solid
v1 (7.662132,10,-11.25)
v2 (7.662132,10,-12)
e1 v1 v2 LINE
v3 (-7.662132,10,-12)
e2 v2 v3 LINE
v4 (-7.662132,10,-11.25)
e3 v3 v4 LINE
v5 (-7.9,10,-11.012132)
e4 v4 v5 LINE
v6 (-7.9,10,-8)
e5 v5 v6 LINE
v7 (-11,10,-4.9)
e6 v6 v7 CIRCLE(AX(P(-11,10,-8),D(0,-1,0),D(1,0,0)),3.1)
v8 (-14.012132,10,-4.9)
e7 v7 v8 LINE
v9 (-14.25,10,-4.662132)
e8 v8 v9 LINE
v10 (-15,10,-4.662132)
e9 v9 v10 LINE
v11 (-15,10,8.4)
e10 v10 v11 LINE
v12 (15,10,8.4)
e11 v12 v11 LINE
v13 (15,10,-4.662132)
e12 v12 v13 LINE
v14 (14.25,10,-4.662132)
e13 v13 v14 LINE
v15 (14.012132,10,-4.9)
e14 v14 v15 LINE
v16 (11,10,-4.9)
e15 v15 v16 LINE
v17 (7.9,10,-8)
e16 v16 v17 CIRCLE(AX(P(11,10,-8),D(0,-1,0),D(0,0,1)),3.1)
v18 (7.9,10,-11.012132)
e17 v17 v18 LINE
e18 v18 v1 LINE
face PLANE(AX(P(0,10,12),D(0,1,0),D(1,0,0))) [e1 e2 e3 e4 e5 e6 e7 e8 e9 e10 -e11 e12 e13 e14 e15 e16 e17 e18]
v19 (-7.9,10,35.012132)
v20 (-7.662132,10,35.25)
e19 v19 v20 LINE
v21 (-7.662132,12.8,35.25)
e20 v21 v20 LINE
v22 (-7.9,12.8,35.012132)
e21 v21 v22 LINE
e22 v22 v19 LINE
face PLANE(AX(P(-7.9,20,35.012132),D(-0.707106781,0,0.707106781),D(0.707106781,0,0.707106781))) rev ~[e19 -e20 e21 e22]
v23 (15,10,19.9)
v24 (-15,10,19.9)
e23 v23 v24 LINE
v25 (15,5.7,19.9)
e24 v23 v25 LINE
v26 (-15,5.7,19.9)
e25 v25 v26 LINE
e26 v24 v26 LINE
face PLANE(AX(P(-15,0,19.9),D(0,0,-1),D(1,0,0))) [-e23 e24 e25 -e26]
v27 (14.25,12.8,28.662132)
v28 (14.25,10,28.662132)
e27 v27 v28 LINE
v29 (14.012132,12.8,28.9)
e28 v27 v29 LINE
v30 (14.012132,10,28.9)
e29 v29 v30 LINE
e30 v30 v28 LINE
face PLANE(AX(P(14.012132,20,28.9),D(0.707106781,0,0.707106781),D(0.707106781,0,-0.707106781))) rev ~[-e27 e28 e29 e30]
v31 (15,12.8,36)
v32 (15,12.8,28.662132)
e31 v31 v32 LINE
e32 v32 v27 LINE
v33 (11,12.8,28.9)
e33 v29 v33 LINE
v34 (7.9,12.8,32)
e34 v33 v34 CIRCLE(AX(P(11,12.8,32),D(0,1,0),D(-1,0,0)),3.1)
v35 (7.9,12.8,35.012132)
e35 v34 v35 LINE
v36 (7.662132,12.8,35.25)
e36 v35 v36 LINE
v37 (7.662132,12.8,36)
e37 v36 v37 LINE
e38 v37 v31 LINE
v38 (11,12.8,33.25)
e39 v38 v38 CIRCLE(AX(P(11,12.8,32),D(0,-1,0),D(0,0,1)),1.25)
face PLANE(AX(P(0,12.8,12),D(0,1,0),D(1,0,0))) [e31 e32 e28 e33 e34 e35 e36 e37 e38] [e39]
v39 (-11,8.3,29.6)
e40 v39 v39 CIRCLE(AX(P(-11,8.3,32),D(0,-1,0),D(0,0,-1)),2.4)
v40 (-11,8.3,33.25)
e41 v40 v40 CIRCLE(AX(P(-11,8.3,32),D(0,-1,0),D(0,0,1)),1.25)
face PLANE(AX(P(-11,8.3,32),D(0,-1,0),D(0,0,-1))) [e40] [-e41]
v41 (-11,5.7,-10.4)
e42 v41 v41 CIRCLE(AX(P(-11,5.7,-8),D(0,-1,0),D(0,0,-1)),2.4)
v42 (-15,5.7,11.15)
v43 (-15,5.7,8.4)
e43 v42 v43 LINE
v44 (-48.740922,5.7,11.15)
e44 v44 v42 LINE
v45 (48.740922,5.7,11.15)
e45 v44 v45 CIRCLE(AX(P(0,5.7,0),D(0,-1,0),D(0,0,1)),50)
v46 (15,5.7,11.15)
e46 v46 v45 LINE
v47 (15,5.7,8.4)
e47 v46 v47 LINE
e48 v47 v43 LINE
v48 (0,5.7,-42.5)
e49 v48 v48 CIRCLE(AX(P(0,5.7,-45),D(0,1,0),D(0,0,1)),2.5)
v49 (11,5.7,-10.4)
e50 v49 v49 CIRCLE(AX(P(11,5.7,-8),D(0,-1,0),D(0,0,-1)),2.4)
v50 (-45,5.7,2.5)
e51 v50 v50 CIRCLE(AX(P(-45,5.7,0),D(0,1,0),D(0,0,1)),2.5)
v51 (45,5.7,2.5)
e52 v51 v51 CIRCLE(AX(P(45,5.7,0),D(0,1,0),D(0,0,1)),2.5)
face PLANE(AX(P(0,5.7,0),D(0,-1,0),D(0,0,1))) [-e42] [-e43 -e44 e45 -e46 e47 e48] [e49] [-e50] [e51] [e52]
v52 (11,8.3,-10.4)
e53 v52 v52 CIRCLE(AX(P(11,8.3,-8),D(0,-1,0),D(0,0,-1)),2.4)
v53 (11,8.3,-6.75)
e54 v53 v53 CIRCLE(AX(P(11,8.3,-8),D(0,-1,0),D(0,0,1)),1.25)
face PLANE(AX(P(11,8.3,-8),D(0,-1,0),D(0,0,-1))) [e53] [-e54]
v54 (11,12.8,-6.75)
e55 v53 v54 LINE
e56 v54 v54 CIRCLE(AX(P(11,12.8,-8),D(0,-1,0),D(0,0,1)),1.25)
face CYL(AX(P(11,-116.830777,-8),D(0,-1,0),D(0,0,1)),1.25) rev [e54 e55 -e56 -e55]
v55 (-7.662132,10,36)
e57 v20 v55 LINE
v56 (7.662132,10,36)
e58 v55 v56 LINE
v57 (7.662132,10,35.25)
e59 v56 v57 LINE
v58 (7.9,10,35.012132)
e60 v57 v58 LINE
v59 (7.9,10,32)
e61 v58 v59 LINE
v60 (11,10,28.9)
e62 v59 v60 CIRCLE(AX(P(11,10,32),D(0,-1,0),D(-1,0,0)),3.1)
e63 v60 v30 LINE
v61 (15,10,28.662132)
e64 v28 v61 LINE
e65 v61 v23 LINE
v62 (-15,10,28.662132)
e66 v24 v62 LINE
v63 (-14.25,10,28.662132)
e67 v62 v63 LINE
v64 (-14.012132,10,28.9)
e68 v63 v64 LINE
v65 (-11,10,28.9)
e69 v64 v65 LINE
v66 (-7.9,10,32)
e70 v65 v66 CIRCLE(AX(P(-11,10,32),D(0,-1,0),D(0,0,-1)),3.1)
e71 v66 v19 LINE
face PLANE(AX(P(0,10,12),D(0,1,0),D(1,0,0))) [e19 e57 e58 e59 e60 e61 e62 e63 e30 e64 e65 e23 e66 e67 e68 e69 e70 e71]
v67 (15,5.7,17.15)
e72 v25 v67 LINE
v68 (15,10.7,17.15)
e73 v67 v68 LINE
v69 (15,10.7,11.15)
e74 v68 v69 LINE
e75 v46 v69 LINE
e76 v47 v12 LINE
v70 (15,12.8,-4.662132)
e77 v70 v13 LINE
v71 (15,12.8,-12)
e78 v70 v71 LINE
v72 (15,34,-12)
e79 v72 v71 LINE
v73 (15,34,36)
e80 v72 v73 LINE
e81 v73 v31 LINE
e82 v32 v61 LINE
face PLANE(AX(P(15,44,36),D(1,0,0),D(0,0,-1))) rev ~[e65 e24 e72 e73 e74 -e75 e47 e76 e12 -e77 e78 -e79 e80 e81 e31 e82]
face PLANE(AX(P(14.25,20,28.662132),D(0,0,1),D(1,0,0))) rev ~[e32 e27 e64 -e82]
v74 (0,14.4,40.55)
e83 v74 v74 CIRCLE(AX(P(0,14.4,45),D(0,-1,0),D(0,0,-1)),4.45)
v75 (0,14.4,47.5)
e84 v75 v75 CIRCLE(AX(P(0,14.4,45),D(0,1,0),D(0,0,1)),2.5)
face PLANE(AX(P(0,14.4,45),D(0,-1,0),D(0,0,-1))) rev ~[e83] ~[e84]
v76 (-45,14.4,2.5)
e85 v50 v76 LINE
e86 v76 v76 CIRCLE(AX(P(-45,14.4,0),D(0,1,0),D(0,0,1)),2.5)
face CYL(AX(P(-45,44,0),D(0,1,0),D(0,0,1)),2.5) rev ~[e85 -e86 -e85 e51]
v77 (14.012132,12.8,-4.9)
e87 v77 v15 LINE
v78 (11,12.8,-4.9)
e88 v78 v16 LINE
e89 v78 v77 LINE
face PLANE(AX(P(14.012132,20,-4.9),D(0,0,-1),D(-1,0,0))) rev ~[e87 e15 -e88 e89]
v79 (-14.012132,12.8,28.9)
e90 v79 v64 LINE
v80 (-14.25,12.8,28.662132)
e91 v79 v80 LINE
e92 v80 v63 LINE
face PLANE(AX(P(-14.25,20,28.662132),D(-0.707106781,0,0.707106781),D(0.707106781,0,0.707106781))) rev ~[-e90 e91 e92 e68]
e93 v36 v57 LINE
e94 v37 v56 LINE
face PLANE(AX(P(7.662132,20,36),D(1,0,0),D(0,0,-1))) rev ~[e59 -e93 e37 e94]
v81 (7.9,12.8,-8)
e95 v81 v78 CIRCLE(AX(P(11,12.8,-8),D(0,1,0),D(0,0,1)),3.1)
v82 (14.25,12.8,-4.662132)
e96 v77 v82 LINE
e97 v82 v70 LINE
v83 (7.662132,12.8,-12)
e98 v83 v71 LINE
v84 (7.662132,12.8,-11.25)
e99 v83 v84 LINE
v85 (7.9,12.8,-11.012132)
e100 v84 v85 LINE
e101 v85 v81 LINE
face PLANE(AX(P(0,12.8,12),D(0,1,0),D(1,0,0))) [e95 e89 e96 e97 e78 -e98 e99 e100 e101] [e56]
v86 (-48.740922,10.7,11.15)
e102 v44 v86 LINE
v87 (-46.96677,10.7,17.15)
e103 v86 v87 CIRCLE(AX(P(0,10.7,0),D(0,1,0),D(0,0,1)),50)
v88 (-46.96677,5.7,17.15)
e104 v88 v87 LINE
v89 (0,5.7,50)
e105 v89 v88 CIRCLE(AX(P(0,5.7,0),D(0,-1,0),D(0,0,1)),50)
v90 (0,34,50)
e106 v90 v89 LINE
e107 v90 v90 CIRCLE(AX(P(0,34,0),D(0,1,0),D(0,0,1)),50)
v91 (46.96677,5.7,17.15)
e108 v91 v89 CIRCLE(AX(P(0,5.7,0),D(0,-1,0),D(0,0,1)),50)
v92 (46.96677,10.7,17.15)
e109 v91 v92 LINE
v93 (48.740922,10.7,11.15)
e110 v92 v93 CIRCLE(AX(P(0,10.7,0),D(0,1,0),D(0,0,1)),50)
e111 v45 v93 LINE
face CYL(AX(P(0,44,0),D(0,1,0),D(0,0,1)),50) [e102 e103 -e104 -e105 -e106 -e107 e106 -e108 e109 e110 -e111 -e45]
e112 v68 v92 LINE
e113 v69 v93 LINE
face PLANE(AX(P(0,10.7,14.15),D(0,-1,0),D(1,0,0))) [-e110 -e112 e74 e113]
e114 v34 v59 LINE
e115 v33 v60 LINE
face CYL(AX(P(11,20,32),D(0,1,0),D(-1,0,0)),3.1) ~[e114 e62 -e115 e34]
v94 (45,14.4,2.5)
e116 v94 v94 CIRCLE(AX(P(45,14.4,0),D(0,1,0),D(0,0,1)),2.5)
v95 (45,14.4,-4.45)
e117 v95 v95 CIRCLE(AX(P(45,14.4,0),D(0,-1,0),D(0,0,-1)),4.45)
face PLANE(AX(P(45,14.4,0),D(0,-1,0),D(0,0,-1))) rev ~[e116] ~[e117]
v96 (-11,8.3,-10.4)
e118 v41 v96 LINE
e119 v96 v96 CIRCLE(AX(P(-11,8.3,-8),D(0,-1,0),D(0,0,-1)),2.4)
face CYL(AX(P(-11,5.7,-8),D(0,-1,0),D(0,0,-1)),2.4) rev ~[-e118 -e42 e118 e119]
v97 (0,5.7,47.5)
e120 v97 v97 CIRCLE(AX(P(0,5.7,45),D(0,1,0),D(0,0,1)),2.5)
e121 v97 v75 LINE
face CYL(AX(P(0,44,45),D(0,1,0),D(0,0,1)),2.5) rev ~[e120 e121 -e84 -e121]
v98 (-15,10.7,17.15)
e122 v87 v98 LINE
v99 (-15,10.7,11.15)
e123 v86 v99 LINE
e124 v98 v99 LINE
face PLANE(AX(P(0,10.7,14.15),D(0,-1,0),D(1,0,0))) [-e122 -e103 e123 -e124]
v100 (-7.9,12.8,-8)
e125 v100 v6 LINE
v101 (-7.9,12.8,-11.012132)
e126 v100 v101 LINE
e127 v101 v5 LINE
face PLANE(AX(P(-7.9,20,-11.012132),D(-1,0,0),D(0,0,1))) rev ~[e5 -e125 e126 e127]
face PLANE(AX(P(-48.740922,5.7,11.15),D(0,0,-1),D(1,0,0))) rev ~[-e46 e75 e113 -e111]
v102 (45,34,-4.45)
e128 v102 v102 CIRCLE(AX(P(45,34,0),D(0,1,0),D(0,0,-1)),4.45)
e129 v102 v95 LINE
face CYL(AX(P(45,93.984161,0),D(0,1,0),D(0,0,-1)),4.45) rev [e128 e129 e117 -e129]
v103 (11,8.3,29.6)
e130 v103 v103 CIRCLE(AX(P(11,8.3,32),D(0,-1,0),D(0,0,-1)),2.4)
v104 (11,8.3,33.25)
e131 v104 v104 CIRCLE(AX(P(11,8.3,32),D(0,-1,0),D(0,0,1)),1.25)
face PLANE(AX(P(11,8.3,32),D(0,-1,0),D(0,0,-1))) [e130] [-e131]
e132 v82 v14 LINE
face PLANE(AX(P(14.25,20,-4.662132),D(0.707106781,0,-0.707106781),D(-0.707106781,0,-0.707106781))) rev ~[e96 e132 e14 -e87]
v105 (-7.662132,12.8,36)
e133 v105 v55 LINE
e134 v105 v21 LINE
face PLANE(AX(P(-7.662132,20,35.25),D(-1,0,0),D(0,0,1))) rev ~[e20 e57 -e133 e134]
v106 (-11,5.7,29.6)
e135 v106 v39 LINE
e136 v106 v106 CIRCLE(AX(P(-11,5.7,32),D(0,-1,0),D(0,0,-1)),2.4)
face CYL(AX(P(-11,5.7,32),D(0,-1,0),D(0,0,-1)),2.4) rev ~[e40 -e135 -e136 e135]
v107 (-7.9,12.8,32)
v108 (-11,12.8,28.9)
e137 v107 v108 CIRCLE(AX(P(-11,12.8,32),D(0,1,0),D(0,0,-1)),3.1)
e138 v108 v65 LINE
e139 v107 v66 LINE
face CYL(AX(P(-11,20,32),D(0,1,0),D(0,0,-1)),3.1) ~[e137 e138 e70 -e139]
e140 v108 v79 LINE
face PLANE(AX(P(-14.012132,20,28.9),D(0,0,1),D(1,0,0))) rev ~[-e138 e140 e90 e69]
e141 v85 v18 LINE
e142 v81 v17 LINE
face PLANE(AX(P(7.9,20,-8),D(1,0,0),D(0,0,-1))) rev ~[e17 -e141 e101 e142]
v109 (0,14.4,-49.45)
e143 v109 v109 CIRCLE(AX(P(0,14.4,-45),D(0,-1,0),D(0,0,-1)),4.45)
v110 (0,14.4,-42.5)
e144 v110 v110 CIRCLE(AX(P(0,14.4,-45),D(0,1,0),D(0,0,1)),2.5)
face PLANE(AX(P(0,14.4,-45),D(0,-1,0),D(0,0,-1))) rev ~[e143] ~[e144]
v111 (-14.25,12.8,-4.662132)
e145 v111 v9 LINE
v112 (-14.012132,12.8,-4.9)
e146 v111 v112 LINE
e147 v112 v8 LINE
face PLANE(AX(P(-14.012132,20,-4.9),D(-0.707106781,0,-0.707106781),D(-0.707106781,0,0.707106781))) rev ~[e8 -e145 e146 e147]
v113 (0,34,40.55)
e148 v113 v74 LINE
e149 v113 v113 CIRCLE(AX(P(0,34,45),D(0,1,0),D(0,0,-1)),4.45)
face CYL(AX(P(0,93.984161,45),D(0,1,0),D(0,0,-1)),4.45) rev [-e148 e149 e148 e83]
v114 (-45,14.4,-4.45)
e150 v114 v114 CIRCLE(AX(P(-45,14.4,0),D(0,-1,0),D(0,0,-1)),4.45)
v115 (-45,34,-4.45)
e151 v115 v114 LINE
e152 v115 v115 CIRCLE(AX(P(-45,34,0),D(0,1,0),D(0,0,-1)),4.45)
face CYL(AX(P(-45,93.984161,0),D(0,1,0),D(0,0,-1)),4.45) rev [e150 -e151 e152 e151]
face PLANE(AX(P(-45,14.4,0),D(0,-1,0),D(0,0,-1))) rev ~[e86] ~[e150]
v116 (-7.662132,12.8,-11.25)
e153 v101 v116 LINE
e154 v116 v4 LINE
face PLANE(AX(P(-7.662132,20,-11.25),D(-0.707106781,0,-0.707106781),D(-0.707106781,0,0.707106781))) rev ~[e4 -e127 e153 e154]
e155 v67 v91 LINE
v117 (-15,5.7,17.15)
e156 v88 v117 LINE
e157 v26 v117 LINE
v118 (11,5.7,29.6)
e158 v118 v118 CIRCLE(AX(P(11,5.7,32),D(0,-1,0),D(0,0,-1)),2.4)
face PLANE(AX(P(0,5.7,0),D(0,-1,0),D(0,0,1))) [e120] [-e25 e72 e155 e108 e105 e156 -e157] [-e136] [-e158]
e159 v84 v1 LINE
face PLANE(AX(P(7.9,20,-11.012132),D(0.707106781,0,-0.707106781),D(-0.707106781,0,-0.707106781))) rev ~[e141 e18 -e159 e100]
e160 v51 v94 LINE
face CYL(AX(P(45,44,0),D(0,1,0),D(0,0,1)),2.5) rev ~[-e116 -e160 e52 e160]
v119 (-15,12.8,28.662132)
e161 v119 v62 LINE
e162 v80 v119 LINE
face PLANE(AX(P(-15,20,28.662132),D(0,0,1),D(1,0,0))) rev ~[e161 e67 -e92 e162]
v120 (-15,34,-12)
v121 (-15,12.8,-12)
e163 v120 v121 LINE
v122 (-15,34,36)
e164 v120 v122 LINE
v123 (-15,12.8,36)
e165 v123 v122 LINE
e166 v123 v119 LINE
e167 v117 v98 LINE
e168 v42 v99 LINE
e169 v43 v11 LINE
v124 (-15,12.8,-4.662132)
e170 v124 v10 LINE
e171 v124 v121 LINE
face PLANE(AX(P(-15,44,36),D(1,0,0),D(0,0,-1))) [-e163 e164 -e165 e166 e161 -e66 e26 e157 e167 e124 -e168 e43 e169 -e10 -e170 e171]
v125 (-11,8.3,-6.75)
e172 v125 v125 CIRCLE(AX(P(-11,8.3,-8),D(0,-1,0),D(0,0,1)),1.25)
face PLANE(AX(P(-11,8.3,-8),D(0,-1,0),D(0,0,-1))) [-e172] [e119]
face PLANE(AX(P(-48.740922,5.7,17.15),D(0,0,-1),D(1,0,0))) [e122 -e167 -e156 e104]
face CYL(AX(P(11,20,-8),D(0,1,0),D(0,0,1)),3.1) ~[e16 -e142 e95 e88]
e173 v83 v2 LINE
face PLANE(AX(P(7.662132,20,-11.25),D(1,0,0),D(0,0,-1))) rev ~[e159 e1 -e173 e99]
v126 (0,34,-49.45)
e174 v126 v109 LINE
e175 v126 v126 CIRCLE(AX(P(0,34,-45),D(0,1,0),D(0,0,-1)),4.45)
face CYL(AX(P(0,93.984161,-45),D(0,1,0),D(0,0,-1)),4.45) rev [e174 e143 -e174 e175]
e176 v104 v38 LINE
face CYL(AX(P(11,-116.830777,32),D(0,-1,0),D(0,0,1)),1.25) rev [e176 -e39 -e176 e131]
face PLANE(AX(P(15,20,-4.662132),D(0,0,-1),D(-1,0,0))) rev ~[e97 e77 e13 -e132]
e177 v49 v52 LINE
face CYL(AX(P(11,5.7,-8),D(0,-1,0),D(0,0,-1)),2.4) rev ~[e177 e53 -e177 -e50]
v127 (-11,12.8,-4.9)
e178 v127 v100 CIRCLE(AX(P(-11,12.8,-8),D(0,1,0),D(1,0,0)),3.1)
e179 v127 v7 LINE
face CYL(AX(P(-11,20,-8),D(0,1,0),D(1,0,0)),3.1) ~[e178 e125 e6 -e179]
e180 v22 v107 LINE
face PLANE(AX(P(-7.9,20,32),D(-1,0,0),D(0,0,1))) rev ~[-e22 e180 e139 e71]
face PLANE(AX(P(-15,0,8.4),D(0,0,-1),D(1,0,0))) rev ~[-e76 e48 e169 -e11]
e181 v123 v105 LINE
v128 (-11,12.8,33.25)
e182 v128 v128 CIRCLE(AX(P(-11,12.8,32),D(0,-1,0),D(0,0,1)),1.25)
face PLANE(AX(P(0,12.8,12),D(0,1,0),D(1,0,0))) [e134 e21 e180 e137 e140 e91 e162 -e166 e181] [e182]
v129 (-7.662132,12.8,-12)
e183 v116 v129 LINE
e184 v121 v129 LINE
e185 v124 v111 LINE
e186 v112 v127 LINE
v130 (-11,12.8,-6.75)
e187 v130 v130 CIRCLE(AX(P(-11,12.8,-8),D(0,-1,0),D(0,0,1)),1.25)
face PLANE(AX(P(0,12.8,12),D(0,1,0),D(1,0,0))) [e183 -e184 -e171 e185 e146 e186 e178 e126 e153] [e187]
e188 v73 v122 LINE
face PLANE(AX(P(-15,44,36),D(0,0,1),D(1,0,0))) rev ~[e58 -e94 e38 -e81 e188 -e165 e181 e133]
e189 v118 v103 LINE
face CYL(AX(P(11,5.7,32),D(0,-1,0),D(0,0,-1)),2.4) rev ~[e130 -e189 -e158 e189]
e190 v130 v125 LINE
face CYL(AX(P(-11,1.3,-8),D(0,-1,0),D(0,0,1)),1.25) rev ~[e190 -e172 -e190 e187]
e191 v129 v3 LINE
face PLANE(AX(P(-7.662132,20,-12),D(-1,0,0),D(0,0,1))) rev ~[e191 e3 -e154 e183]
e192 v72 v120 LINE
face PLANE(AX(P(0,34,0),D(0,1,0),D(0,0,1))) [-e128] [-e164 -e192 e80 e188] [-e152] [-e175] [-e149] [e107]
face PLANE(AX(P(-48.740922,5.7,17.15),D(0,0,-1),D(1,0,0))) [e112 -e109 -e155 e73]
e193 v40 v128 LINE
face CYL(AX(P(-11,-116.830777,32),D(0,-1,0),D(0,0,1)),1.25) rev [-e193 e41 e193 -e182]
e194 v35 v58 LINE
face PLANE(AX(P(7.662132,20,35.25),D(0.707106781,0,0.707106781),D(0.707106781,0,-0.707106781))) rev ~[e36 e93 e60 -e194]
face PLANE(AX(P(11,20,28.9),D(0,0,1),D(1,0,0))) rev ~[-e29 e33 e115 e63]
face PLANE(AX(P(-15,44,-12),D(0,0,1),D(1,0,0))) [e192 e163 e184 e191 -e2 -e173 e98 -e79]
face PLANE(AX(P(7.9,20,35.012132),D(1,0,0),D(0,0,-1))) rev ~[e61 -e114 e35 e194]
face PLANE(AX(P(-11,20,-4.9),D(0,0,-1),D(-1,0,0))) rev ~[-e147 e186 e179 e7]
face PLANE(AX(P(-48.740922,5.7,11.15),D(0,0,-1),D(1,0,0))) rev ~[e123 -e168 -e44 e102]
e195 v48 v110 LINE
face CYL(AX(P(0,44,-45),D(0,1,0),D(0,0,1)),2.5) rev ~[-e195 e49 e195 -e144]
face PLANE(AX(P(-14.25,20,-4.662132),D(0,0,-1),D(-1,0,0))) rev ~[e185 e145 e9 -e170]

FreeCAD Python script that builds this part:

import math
import FreeCAD as App
import Part
import Sketcher
from FreeCAD import Vector
Q = App.Units.Quantity


def add_polygon(sketch, points):
    """Adds a closed chain of lines whose ends are joined by coincident constraints."""
    first, n = sketch.GeometryCount, len(points)
    for a, b in zip(points, points[1:] + points[:1]):
        sketch.addGeometry(Part.LineSegment(App.Vector(*a, 0), App.Vector(*b, 0)), False)
    for i in range(n):
        sketch.addConstraint(Sketcher.Constraint("Coincident", first + i, 2, first + (i + 1) % n, 1))

doc = App.newDocument("Part")
body = doc.addObject("PartDesign::Body", "Body")

# Sketch on XZ plane
sketch1 = body.newObject("Sketcher::SketchObject", "Sketch")
sketch1.AttachmentSupport = (doc.getObject("XZ_Plane"), [""])
sketch1.MapMode = "FlatFace"
sketch1.addGeometry(Part.Circle(Vector(0, 0, 0), Vector(0, 0, 1), 95), False)
sketch1.addConstraint([
    Sketcher.Constraint("Coincident", 0, 3, -1, 1),
    Sketcher.Constraint("Diameter", 0, Q("190 mm")),
])
pad1 = body.newObject("PartDesign::Pad", "Pad")
pad1.Profile = sketch1
pad1.Length = 20
pad1.Reversed = True

# Sketch on XZ plane
sketch2 = body.newObject("Sketcher::SketchObject", "Sketch001")
sketch2.AttachmentSupport = (doc.getObject("XZ_Plane"), [""])
sketch2.MapMode = "FlatFace"
sketch2.AttachmentOffset = App.Placement(Vector(0, 0, -20), App.Rotation())
sketch2.addGeometry([
    Part.LineSegment(Vector(7.66, -12, 0), Vector(-7.66, -12, 0)),  # 0
    Part.LineSegment(Vector(-7.66, -12, 0), Vector(-7.66, -11.25, 0)),  # 1
    Part.LineSegment(Vector(-7.66, -11.25, 0), Vector(-7.9, -11.01, 0)),  # 2
    Part.LineSegment(Vector(-7.9, -11.01, 0), Vector(-7.9, -8, 0)),  # 3
    Part.ArcOfCircle(Part.Circle(Vector(-11, -8, 0), Vector(0, 0, 1), 3.1), math.radians(0), math.radians(90)),  # 4
    Part.LineSegment(Vector(-11, -4.9, 0), Vector(-14.01, -4.9, 0)),  # 5
    Part.LineSegment(Vector(-14.01, -4.9, 0), Vector(-14.25, -4.66, 0)),  # 6
    Part.LineSegment(Vector(-14.25, -4.66, 0), Vector(-15, -4.66, 0)),  # 7
    Part.LineSegment(Vector(-15, -4.66, 0), Vector(-15, 28.66, 0)),  # 8
    Part.LineSegment(Vector(-15, 28.66, 0), Vector(-14.25, 28.66, 0)),  # 9
    Part.LineSegment(Vector(-14.25, 28.66, 0), Vector(-14.01, 28.9, 0)),  # 10
    Part.LineSegment(Vector(-14.01, 28.9, 0), Vector(-11, 28.9, 0)),  # 11
    Part.ArcOfCircle(Part.Circle(Vector(-11, 32, 0), Vector(0, 0, 1), 3.1), math.radians(-90), math.radians(0)),  # 12
    Part.LineSegment(Vector(-7.9, 32, 0), Vector(-7.9, 35.01, 0)),  # 13
    Part.LineSegment(Vector(-7.9, 35.01, 0), Vector(-7.66, 35.25, 0)),  # 14
    Part.LineSegment(Vector(-7.66, 35.25, 0), Vector(-7.66, 36, 0)),  # 15
    Part.LineSegment(Vector(-7.66, 36, 0), Vector(7.66, 36, 0)),  # 16
    Part.LineSegment(Vector(7.66, 36, 0), Vector(7.66, 35.25, 0)),  # 17
    Part.LineSegment(Vector(7.66, 35.25, 0), Vector(7.9, 35.01, 0)),  # 18
    Part.LineSegment(Vector(7.9, 35.01, 0), Vector(7.9, 32, 0)),  # 19
    Part.ArcOfCircle(Part.Circle(Vector(11, 32, 0), Vector(0, 0, 1), 3.1), math.radians(180), math.radians(270)),  # 20
    Part.LineSegment(Vector(11, 28.9, 0), Vector(14.01, 28.9, 0)),  # 21
    Part.LineSegment(Vector(14.01, 28.9, 0), Vector(14.25, 28.66, 0)),  # 22
    Part.LineSegment(Vector(14.25, 28.66, 0), Vector(15, 28.66, 0)),  # 23
    Part.LineSegment(Vector(15, 28.66, 0), Vector(15, -4.66, 0)),  # 24
    Part.LineSegment(Vector(15, -4.66, 0), Vector(14.25, -4.66, 0)),  # 25
    Part.LineSegment(Vector(14.25, -4.66, 0), Vector(14.01, -4.9, 0)),  # 26
    Part.LineSegment(Vector(14.01, -4.9, 0), Vector(11, -4.9, 0)),  # 27
    Part.ArcOfCircle(Part.Circle(Vector(11, -8, 0), Vector(0, 0, 1), 3.1), math.radians(90), math.radians(180)),  # 28
    Part.LineSegment(Vector(7.9, -8, 0), Vector(7.9, -11.01, 0)),  # 29
    Part.LineSegment(Vector(7.9, -11.01, 0), Vector(7.66, -11.25, 0)),  # 30
    Part.LineSegment(Vector(7.66, -11.25, 0), Vector(7.66, -12, 0)),  # 31
], False)
sketch2.addConstraint([
    Sketcher.Constraint("Coincident", 0, 2, 1, 1),
    Sketcher.Constraint("Coincident", 1, 2, 2, 1),
    Sketcher.Constraint("Coincident", 2, 2, 3, 1),
    Sketcher.Constraint("Tangent", 3, 2, 4, 1),
    Sketcher.Constraint("Tangent", 4, 2, 5, 1),
    Sketcher.Constraint("Coincident", 5, 2, 6, 1),
    Sketcher.Constraint("Coincident", 6, 2, 7, 1),
    Sketcher.Constraint("Coincident", 7, 2, 8, 1),
    Sketcher.Constraint("Coincident", 8, 2, 9, 1),
    Sketcher.Constraint("Coincident", 9, 2, 10, 1),
    Sketcher.Constraint("Coincident", 10, 2, 11, 1),
    Sketcher.Constraint("Tangent", 11, 2, 12, 1),
    Sketcher.Constraint("Tangent", 12, 2, 13, 1),
    Sketcher.Constraint("Coincident", 13, 2, 14, 1),
    Sketcher.Constraint("Coincident", 14, 2, 15, 1),
    Sketcher.Constraint("Coincident", 15, 2, 16, 1),
    Sketcher.Constraint("Coincident", 16, 2, 17, 1),
    Sketcher.Constraint("Coincident", 17, 2, 18, 1),
    Sketcher.Constraint("Coincident", 18, 2, 19, 1),
    Sketcher.Constraint("Tangent", 19, 2, 20, 1),
    Sketcher.Constraint("Tangent", 20, 2, 21, 1),
    Sketcher.Constraint("Coincident", 21, 2, 22, 1),
    Sketcher.Constraint("Coincident", 22, 2, 23, 1),
    Sketcher.Constraint("Coincident", 23, 2, 24, 1),
    Sketcher.Constraint("Coincident", 24, 2, 25, 1),
    Sketcher.Constraint("Coincident", 25, 2, 26, 1),
    Sketcher.Constraint("Coincident", 26, 2, 27, 1),
    Sketcher.Constraint("Tangent", 27, 2, 28, 1),
    Sketcher.Constraint("Tangent", 28, 2, 29, 1),
    Sketcher.Constraint("Coincident", 29, 2, 30, 1),
    Sketcher.Constraint("Coincident", 30, 2, 31, 1),
    Sketcher.Constraint("Coincident", 31, 2, 0, 1),
    Sketcher.Constraint("Horizontal", 0),
    Sketcher.Constraint("Vertical", 1),
    Sketcher.Constraint("Vertical", 3),
    Sketcher.Constraint("Horizontal", 5),
    Sketcher.Constraint("Horizontal", 7),
    Sketcher.Constraint("Vertical", 8),
    Sketcher.Constraint("Horizontal", 9),
    Sketcher.Constraint("Horizontal", 11),
    Sketcher.Constraint("Vertical", 13),
    Sketcher.Constraint("Vertical", 15),
    Sketcher.Constraint("Horizontal", 16),
    Sketcher.Constraint("Vertical", 17),
    Sketcher.Constraint("Vertical", 19),
    Sketcher.Constraint("Horizontal", 21),
    Sketcher.Constraint("Horizontal", 23),
    Sketcher.Constraint("Vertical", 24),
    Sketcher.Constraint("Horizontal", 25),
    Sketcher.Constraint("Horizontal", 27),
    Sketcher.Constraint("Vertical", 29),
    Sketcher.Constraint("Vertical", 31),
    Sketcher.Constraint("Equal", 4, 12),
    Sketcher.Constraint("Equal", 12, 20),
    Sketcher.Constraint("Equal", 20, 28),
    Sketcher.Constraint("Symmetric", 12, 3, 20, 3, -2),
    Sketcher.Constraint("Symmetric", 4, 3, 28, 3, -2),
    Sketcher.Constraint("Symmetric", 14, 2, 17, 2, -2),
    Sketcher.Constraint("Symmetric", 9, 2, 22, 2, -2),
    Sketcher.Constraint("Symmetric", 7, 2, 24, 2, -2),
    Sketcher.Constraint("Symmetric", 1, 2, 30, 2, -2),
    Sketcher.Constraint("Parallel", 2, 6),
    Sketcher.Constraint("Perpendicular", 6, 10),
    Sketcher.Constraint("Parallel", 10, 14),
    Sketcher.Constraint("Perpendicular", 14, 18),
    Sketcher.Constraint("Parallel", 18, 22),
    Sketcher.Constraint("Perpendicular", 22, 26),
    Sketcher.Constraint("Parallel", 26, 30),
    Sketcher.Constraint("Horizontal", 13, 2, 18, 2),
    Sketcher.Constraint("Vertical", 4, 3, 12, 3),
    Sketcher.Constraint("Vertical", 6, 2, 9, 2),
    Sketcher.Constraint("Vertical", 5, 2, 10, 2),
    Sketcher.Constraint("Vertical", 1, 2, 14, 2),
    Sketcher.Constraint("Vertical", 22, 2, 25, 2),
    Sketcher.Constraint("Equal", 25, 1),
    Sketcher.Constraint("Equal", 27, 3),
    Sketcher.Constraint("Equal", 3, 13),
    Sketcher.Constraint("Equal", 1, 15),
    Sketcher.Constraint("Equal", 2, 6),
    Sketcher.Constraint("Radius", 4, Q("3.1 mm")),
    Sketcher.Constraint("DistanceX", 4, 3, -1, 1, Q("11 mm")),
    Sketcher.Constraint("DistanceY", 4, 3, -1, 1, Q("8 mm")),
    Sketcher.Constraint("DistanceY", -1, 1, 12, 3, Q("32 mm")),
    Sketcher.Constraint("DistanceY", 0, 2, -1, 1, Q("12 mm")),
    Sketcher.Constraint("DistanceX", 7, 2, 7, 1, Q("0.75 mm")),
    Sketcher.Constraint("DistanceX", 0, 2, 0, 1, Q("15.324264 mm")),
])
pocket1 = body.newObject("PartDesign::Pocket", "Pocket")
pocket1.Profile = sketch2
pocket1.Length = 10
pocket1.Reversed = True

# Sketch on XZ plane
sketch3 = body.newObject("Sketcher::SketchObject", "Sketch002")
sketch3.AttachmentSupport = (doc.getObject("XZ_Plane"), [""])
sketch3.MapMode = "FlatFace"
sketch3.AttachmentOffset = App.Placement(Vector(0, 0, -20), App.Rotation())
sketch3.addGeometry([
    Part.Circle(Vector(-11, -8, 0), Vector(0, 0, 1), 1.2),
    Part.Circle(Vector(11, -8, 0), Vector(0, 0, 1), 1.2),
    Part.Circle(Vector(-11, 32, 0), Vector(0, 0, 1), 1.2),
    Part.Circle(Vector(11, 32, 0), Vector(0, 0, 1), 1.2),
], False)
sketch3.addConstraint([
    Sketcher.Constraint("Equal", 0, 1),
    Sketcher.Constraint("Equal", 1, 2),
    Sketcher.Constraint("Equal", 2, 3),
    Sketcher.Constraint("Symmetric", 0, 3, 1, 3, -2),
    Sketcher.Constraint("Symmetric", 2, 3, 3, 3, -2),
    Sketcher.Constraint("Vertical", 0, 3, 2, 3),
    Sketcher.Constraint("Diameter", 0, Q("2.5 mm")),
    Sketcher.Constraint("DistanceX", 0, 3, -1, 1, Q("11 mm")),
    Sketcher.Constraint("DistanceY", 0, 3, -1, 1, Q("8 mm")),
    Sketcher.Constraint("DistanceY", -1, 1, 2, 3, Q("32 mm")),
])
pocket2 = body.newObject("PartDesign::Pocket", "Pocket001")
pocket2.Profile = sketch3
pocket2.Type = "ThroughAll"
pocket2.Midplane = True

# Sketch on XZ plane
sketch4 = body.newObject("Sketcher::SketchObject", "Sketch003")
sketch4.AttachmentSupport = (doc.getObject("XZ_Plane"), [""])
sketch4.MapMode = "FlatFace"
sketch4.AttachmentOffset = App.Placement(Vector(0, 0, -20), App.Rotation())
add_polygon(sketch4, [(-15, -12), (-15, 36), (15, 36), (15, -12)])  # lines 0-3
sketch4.addConstraint([
    Sketcher.Constraint("Vertical", 0),
    Sketcher.Constraint("Horizontal", 1),
    Sketcher.Constraint("Vertical", 2),
    Sketcher.Constraint("Horizontal", 3),
    Sketcher.Constraint("DistanceX", 1, 1, 1, 2, Q("30 mm")),
    Sketcher.Constraint("DistanceY", 0, 1, 0, 2, Q("48 mm")),
    Sketcher.Constraint("DistanceX", 0, 2, -1, 1, Q("15 mm")),
    Sketcher.Constraint("DistanceY", -1, 1, 0, 2, Q("36 mm")),
])
pocket3 = body.newObject("PartDesign::Pocket", "Pocket002")
pocket3.Profile = sketch4
pocket3.Type = "TwoLengths"
pocket3.Length = 136.830777
pocket3.Length2 = 7.2

# Sketch on XZ plane
sketch5 = body.newObject("Sketcher::SketchObject", "Sketch004")
sketch5.AttachmentSupport = (doc.getObject("XZ_Plane"), [""])
sketch5.MapMode = "FlatFace"
sketch5.addGeometry([
    Part.Circle(Vector(11, -8, 0), Vector(0, 0, 1), 2.4),
    Part.Circle(Vector(11, 32, 0), Vector(0, 0, 1), 2.4),
    Part.Circle(Vector(-11, -8, 0), Vector(0, 0, 1), 2.4),
    Part.Circle(Vector(-11, 32, 0), Vector(0, 0, 1), 2.4),
], False)
sketch5.addConstraint([
    Sketcher.Constraint("Equal", 0, 1),
    Sketcher.Constraint("Equal", 1, 2),
    Sketcher.Constraint("Equal", 2, 3),
    Sketcher.Constraint("Symmetric", 0, 3, 2, 3, -2),
    Sketcher.Constraint("Horizontal", 1, 3, 3, 3),
    Sketcher.Constraint("Diameter", 0, Q("4.8 mm")),
    Sketcher.Constraint("DistanceX", -1, 1, 0, 3, Q("11 mm")),
    Sketcher.Constraint("DistanceY", 0, 3, -1, 1, Q("8 mm")),
    Sketcher.Constraint("DistanceX", 3, 3, 1, 3, Q("22 mm")),
    Sketcher.Constraint("DistanceX", -1, 1, 1, 3, Q("10.999991 mm")),
    Sketcher.Constraint("DistanceY", -1, 1, 1, 3, Q("32.000015 mm")),
])
pocket4 = body.newObject("PartDesign::Pocket", "Pocket003")
pocket4.Profile = sketch5
pocket4.Length = 2.6

# Sketch on XZ plane
sketch6 = body.newObject("Sketcher::SketchObject", "Sketch005")
sketch6.AttachmentSupport = (doc.getObject("XZ_Plane"), [""])
sketch6.MapMode = "FlatFace"
sketch6.addGeometry([
    Part.Circle(Vector(86, 0, 0), Vector(0, 0, 1), 4),
    Part.Circle(Vector(0, -86, 0), Vector(0, 0, 1), 4),
    Part.Circle(Vector(-86, 0, 0), Vector(0, 0, 1), 4),
    Part.Circle(Vector(0, 86, 0), Vector(0, 0, 1), 4),
], False)
sketch6.addConstraint([
    Sketcher.Constraint("Equal", 0, 1),
    Sketcher.Constraint("Equal", 1, 2),
    Sketcher.Constraint("Equal", 2, 3),
    Sketcher.Constraint("Symmetric", 0, 3, 2, 3, -1, 1),
    Sketcher.Constraint("Symmetric", 1, 3, 3, 3, -1, 1),
    Sketcher.Constraint("PointOnObject", 0, 3, -1),
    Sketcher.Constraint("PointOnObject", 1, 3, -2),
    Sketcher.Constraint("Diameter", 0, Q("8 mm")),
    Sketcher.Constraint("DistanceX", -1, 1, 0, 3, Q("86 mm")),
    Sketcher.Constraint("DistanceY", 1, 3, -1, 1, Q("86 mm")),
])
pocket5 = body.newObject("PartDesign::Pocket", "Pocket004")
pocket5.Profile = sketch6
pocket5.Type = "ThroughAll"

# Sketch on XZ plane
sketch7 = body.newObject("Sketcher::SketchObject", "Sketch006")
sketch7.AttachmentSupport = (doc.getObject("XZ_Plane"), [""])
sketch7.MapMode = "FlatFace"
add_polygon(sketch7, [(-15, 8), (-15, 20), (15, 20), (15, 8)])  # lines 0-3
sketch7.addConstraint([
    Sketcher.Constraint("Vertical", 0),
    Sketcher.Constraint("Horizontal", 1),
    Sketcher.Constraint("Vertical", 2),
    Sketcher.Constraint("Horizontal", 3),
    Sketcher.Constraint("DistanceX", 1, 1, 1, 2, Q("30 mm")),
    Sketcher.Constraint("DistanceY", 0, 1, 0, 2, Q("11.5 mm")),
    Sketcher.Constraint("DistanceX", 0, 2, -1, 1, Q("15 mm")),
    Sketcher.Constraint("DistanceY", -1, 1, 0, 2, Q("19.9 mm")),
])
pocket6 = body.newObject("PartDesign::Pocket", "Pocket005")
pocket6.Profile = sketch7
pocket6.Type = "ThroughAll"

# Sketch on XZ plane
sketch8 = body.newObject("Sketcher::SketchObject", "Sketch007")
sketch8.AttachmentSupport = (doc.getObject("XZ_Plane"), [""])
sketch8.MapMode = "FlatFace"
sketch8.AttachmentOffset = App.Placement(Vector(0, 0, 1.3), App.Rotation())
sketch8.addGeometry(Part.Circle(Vector(0, 0, 0), Vector(0, 0, 1), 95), False)  # 0
sketch8.addGeometry(Part.Circle(Vector(0, 86, 0), Vector(0, 0, 1), 4), False)  # 1
sketch8.addGeometry(Part.Circle(Vector(-11, 32, 0), Vector(0, 0, 1), 2.4), False)  # 2
sketch8.addGeometry(Part.Circle(Vector(-86, 0, 0), Vector(0, 0, 1), 4), False)  # 3
sketch8.addGeometry(Part.Circle(Vector(-11, -8, 0), Vector(0, 0, 1), 2.4), False)  # 4
sketch8.addGeometry(Part.Circle(Vector(11, 32, 0), Vector(0, 0, 1), 2.4), False)  # 5
add_polygon(sketch8, [(15, 8.4), (-15, 8.4), (-15, 19.9), (15, 19.9)])  # lines 6-9
sketch8.addGeometry(Part.Circle(Vector(86, 0, 0), Vector(0, 0, 1), 4), False)  # 10
sketch8.addGeometry(Part.Circle(Vector(11, -8, 0), Vector(0, 0, 1), 2.4), False)  # 11
sketch8.addGeometry(Part.Circle(Vector(0, -86, 0), Vector(0, 0, 1), 4), False)  # 12
sketch8.addConstraint([
    Sketcher.Constraint("Horizontal", 6),
    Sketcher.Constraint("Vertical", 7),
    Sketcher.Constraint("Horizontal", 8),
    Sketcher.Constraint("Vertical", 9),
    Sketcher.Constraint("Coincident", 0, 3, -1, 1),
    Sketcher.Constraint("Equal", 1, 3),
    Sketcher.Constraint("Equal", 2, 4),
    Sketcher.Constraint("Equal", 4, 5),
    Sketcher.Constraint("Equal", 3, 10),
    Sketcher.Constraint("Equal", 5, 11),
    Sketcher.Constraint("Equal", 10, 12),
    Sketcher.Constraint("Symmetric", 3, 3, 10, 3, -1, 1),
    Sketcher.Constraint("Symmetric", 1, 3, 12, 3, -1, 1),
    Sketcher.Constraint("Symmetric", 4, 3, 11, 3, -2),
    Sketcher.Constraint("PointOnObject", 1, 3, -2),
    Sketcher.Constraint("PointOnObject", 3, 3, -1),
    Sketcher.Constraint("Horizontal", 2, 3, 5, 3),
    Sketcher.Constraint("Diameter", 0, Q("190 mm")),
    Sketcher.Constraint("Diameter", 1, Q("8 mm")),
    Sketcher.Constraint("Diameter", 2, Q("4.8 mm")),
    Sketcher.Constraint("DistanceX", 6, 2, 6, 1, Q("30 mm")),
    Sketcher.Constraint("DistanceY", 7, 1, 7, 2, Q("11.5 mm")),
    Sketcher.Constraint("DistanceY", -1, 1, 1, 3, Q("86 mm")),
    Sketcher.Constraint("DistanceX", 3, 3, -1, 1, Q("86 mm")),
    Sketcher.Constraint("DistanceX", 4, 3, -1, 1, Q("11 mm")),
    Sketcher.Constraint("DistanceY", 4, 3, -1, 1, Q("8 mm")),
    Sketcher.Constraint("DistanceX", 6, 2, -1, 1, Q("15 mm")),
    Sketcher.Constraint("DistanceX", 2, 3, 5, 3, Q("22 mm")),
    Sketcher.Constraint("DistanceY", -1, 1, 6, 2, Q("8.4 mm")),
    Sketcher.Constraint("DistanceX", 2, 3, -1, 1, Q("11.000009 mm")),
    Sketcher.Constraint("DistanceY", -1, 1, 2, 3, Q("32.000015 mm")),
])
pad2 = body.newObject("PartDesign::Pad", "Pad001")
pad2.Profile = sketch8
pad2.Length = 1.3
pad2.Reversed = True

# Sketch on XZ plane
sketch9 = body.newObject("Sketcher::SketchObject", "Sketch008")
sketch9.AttachmentSupport = (doc.getObject("XZ_Plane"), [""])
sketch9.MapMode = "FlatFace"
sketch9.AttachmentOffset = App.Placement(Vector(0, 0, -1.3), App.Rotation())
sketch9.addGeometry([
    Part.Circle(Vector(-11, -8, 0), Vector(0, 0, 1), 2.4),  # 0
    Part.Circle(Vector(-11, -8, 0), Vector(0, 0, 1), 1.2),  # 1
    Part.Circle(Vector(11, -8, 0), Vector(0, 0, 1), 2.4),  # 2
    Part.Circle(Vector(11, -8, 0), Vector(0, 0, 1), 1.2),  # 3
    Part.Circle(Vector(11, 32, 0), Vector(0, 0, 1), 2.4),  # 4
    Part.Circle(Vector(11, 32, 0), Vector(0, 0, 1), 1.2),  # 5
    Part.Circle(Vector(-11, 32, 0), Vector(0, 0, 1), 2.4),  # 6
    Part.Circle(Vector(-11, 32, 0), Vector(0, 0, 1), 1.2),  # 7
], False)
sketch9.addConstraint([
    Sketcher.Constraint("Coincident", 1, 3, 0, 3),
    Sketcher.Constraint("Coincident", 3, 3, 2, 3),
    Sketcher.Constraint("Equal", 0, 2),
    Sketcher.Constraint("Equal", 1, 3),
    Sketcher.Constraint("Equal", 2, 4),
    Sketcher.Constraint("Equal", 3, 5),
    Sketcher.Constraint("Equal", 4, 6),
    Sketcher.Constraint("Equal", 5, 7),
    Sketcher.Constraint("Symmetric", 0, 3, 2, 3, -2),
    Sketcher.Constraint("Symmetric", 5, 3, 7, 3, -2),
    Sketcher.Constraint("Horizontal", 4, 3, 6, 3),
    Sketcher.Constraint("Vertical", 3, 3, 5, 3),
    Sketcher.Constraint("Diameter", 0, Q("4.8 mm")),
    Sketcher.Constraint("Diameter", 1, Q("2.5 mm")),
    Sketcher.Constraint("DistanceX", 0, 3, -1, 1, Q("11 mm")),
    Sketcher.Constraint("DistanceY", 0, 3, -1, 1, Q("8 mm")),
    Sketcher.Constraint("DistanceY", -1, 1, 5, 3, Q("32 mm")),
    Sketcher.Constraint("DistanceX", 6, 3, 4, 3, Q("22 mm")),
    Sketcher.Constraint("DistanceX", -1, 1, 4, 3, Q("10.999991 mm")),
    Sketcher.Constraint("DistanceY", -1, 1, 4, 3, Q("32.000015 mm")),
])
pad3 = body.newObject("PartDesign::Pad", "Pad002")
pad3.Profile = sketch9
pad3.Length = 1.3
pad3.Reversed = True

# Sketch on XZ plane
sketch10 = body.newObject("Sketcher::SketchObject", "Sketch009")
sketch10.AttachmentSupport = (doc.getObject("XZ_Plane"), [""])
sketch10.MapMode = "FlatFace"
sketch10.AttachmentOffset = App.Placement(Vector(0, 0, 1.3), App.Rotation())
add_polygon(sketch10, [(8, 86), (4, 92), (-4, 92), (-8, 86), (-4, 80), (4, 80)])  # lines 0-5
add_polygon(sketch10, [(-86, 8), (-92, 4), (-92, -4), (-86, -8), (-80, -4), (-80, 4)])  # lines 6-11
add_polygon(sketch10, [(86, -8), (92, -4), (92, 4), (86, 8), (80, 4), (80, -4)])  # lines 12-17
add_polygon(sketch10, [(-8, -86), (-4, -92), (4, -92), (8, -86), (4, -80), (-4, -80)])  # lines 18-23
sketch10.addConstraint([
    Sketcher.Constraint("Horizontal", 1),
    Sketcher.Constraint("Horizontal", 4),
    Sketcher.Constraint("Vertical", 7),
    Sketcher.Constraint("Vertical", 10),
    Sketcher.Constraint("Vertical", 13),
    Sketcher.Constraint("Vertical", 16),
    Sketcher.Constraint("Horizontal", 19),
    Sketcher.Constraint("Horizontal", 22),
    Sketcher.Constraint("Symmetric", 6, 2, 12, 2, -1, 1),
    Sketcher.Constraint("Symmetric", 8, 2, 14, 2, -1, 1),
    Sketcher.Constraint("Symmetric", 9, 2, 15, 2, -1, 1),
    Sketcher.Constraint("Symmetric", 11, 2, 17, 2, -1, 1),
    Sketcher.Constraint("Symmetric", 0, 2, 18, 2, -1, 1),
    Sketcher.Constraint("Symmetric", 2, 2, 20, 2, -1, 1),
    Sketcher.Constraint("Symmetric", 3, 2, 21, 2, -1, 1),
    Sketcher.Constraint("Symmetric", 5, 2, 23, 2, -1, 1),
    Sketcher.Constraint("Symmetric", 2, 2, 5, 2, -2),
    Sketcher.Constraint("Symmetric", 11, 2, 14, 2, -2),
    Sketcher.Constraint("Parallel", 0, 3),
    Sketcher.Constraint("Parallel", 2, 5),
    Sketcher.Constraint("Perpendicular", 3, 6),
    Sketcher.Constraint("Perpendicular", 5, 8),
    Sketcher.Constraint("Parallel", 6, 9),
    Sketcher.Constraint("Parallel", 8, 11),
    Sketcher.Constraint("Parallel", 11, 14),
    Sketcher.Constraint("Parallel", 14, 17),
    Sketcher.Constraint("Perpendicular", 17, 20),
    Sketcher.Constraint("Parallel", 20, 23),
    Sketcher.Constraint("Horizontal", 7, 2, 9, 2),
    Sketcher.Constraint("Horizontal", 6, 2, 10, 2),
    Sketcher.Constraint("Vertical", 1, 2, 3, 2),
    Sketcher.Constraint("Equal", 22, 7),
    Sketcher.Constraint("Equal", 5, 6),
    Sketcher.Constraint("Angle", 0, Q("120 deg")),
    Sketcher.Constraint("DistanceX", 1, 2, 1, 1, Q("7.5 mm")),
    Sketcher.Constraint("DistanceY", -1, 1, 2, 2, Q("86 mm")),
    Sketcher.Constraint("DistanceX", 8, 2, -1, 1, Q("86 mm")),
    Sketcher.Constraint("DistanceX", 2, 2, 5, 2, Q("15 mm")),
])
pocket7 = body.newObject("PartDesign::Pocket", "Pocket006")
pocket7.Profile = sketch10
pocket7.Length = 6.5

# Sketch on XZ plane
sketch11 = body.newObject("Sketcher::SketchObject", "Sketch010")
sketch11.AttachmentSupport = (doc.getObject("XZ_Plane"), [""])
sketch11.MapMode = "FlatFace"
sketch11.AttachmentOffset = App.Placement(Vector(0, 0, -20), App.Rotation())
sketch11.addGeometry([
    Part.Circle(Vector(0, 0, 0), Vector(0, 0, 1), 95),  # 0
    Part.Circle(Vector(0, 86, 0), Vector(0, 0, 1), 4),  # 1
    Part.Circle(Vector(-86, 0, 0), Vector(0, 0, 1), 4),  # 2
    Part.Circle(Vector(0, 0, 0), Vector(0, 0, 1), 50),  # 3
    Part.Circle(Vector(86, 0, 0), Vector(0, 0, 1), 4),  # 4
    Part.Circle(Vector(0, -86, 0), Vector(0, 0, 1), 4),  # 5
], False)
sketch11.addConstraint([
    Sketcher.Constraint("Coincident", 0, 3, -1, 1),
    Sketcher.Constraint("Coincident", 3, 3, -1, 1),
    Sketcher.Constraint("Equal", 1, 2),
    Sketcher.Constraint("Equal", 2, 4),
    Sketcher.Constraint("Equal", 4, 5),
    Sketcher.Constraint("Symmetric", 2, 3, 4, 3, -1, 1),
    Sketcher.Constraint("Symmetric", 1, 3, 5, 3, -1, 1),
    Sketcher.Constraint("PointOnObject", 1, 3, -2),
    Sketcher.Constraint("PointOnObject", 2, 3, -1),
    Sketcher.Constraint("Diameter", 0, Q("190 mm")),
    Sketcher.Constraint("Diameter", 1, Q("8 mm")),
    Sketcher.Constraint("Diameter", 3, Q("100 mm")),
    Sketcher.Constraint("DistanceY", -1, 1, 1, 3, Q("86 mm")),
    Sketcher.Constraint("DistanceX", 2, 3, -1, 1, Q("86 mm")),
])
pocket8 = body.newObject("PartDesign::Pocket", "Pocket007")
pocket8.Profile = sketch11
pocket8.Type = "ThroughAll"
pocket8.Reversed = True

# Sketch on XZ plane
sketch12 = body.newObject("Sketcher::SketchObject", "Sketch011")
sketch12.AttachmentSupport = (doc.getObject("XZ_Plane"), [""])
sketch12.MapMode = "FlatFace"
sketch12.AttachmentOffset = App.Placement(Vector(0, 0, -20), App.Rotation())
sketch12.addGeometry([
    Part.Circle(Vector(0, -45, 0), Vector(0, 0, 1), 2.5),
    Part.Circle(Vector(45, 0, 0), Vector(0, 0, 1), 2.5),
    Part.Circle(Vector(0, 45, 0), Vector(0, 0, 1), 2.5),
    Part.Circle(Vector(-45, 0, 0), Vector(0, 0, 1), 2.5),
], False)
sketch12.addConstraint([
    Sketcher.Constraint("Equal", 0, 1),
    Sketcher.Constraint("Equal", 1, 2),
    Sketcher.Constraint("Equal", 2, 3),
    Sketcher.Constraint("Symmetric", 0, 3, 2, 3, -1, 1),
    Sketcher.Constraint("Symmetric", 1, 3, 3, 3, -1, 1),
    Sketcher.Constraint("PointOnObject", 0, 3, -2),
    Sketcher.Constraint("PointOnObject", 1, 3, -1),
    Sketcher.Constraint("Diameter", 0, Q("5 mm")),
    Sketcher.Constraint("DistanceY", 0, 3, -1, 1, Q("45 mm")),
    Sketcher.Constraint("DistanceX", -1, 1, 1, 3, Q("45 mm")),
])
pocket9 = body.newObject("PartDesign::Pocket", "Pocket008")
pocket9.Profile = sketch12
pocket9.Type = "ThroughAll"
pocket9.Reversed = True

# Sketch on XZ plane
sketch13 = body.newObject("Sketcher::SketchObject", "Sketch012")
sketch13.AttachmentSupport = (doc.getObject("XZ_Plane"), [""])
sketch13.MapMode = "FlatFace"
sketch13.AttachmentOffset = App.Placement(Vector(0, 0, 1.3), App.Rotation())
sketch13.addGeometry([
    Part.Circle(Vector(0, -45, 0), Vector(0, 0, 1), 4.5),
    Part.Circle(Vector(-45, 0, 0), Vector(0, 0, 1), 4.5),
    Part.Circle(Vector(0, 45, 0), Vector(0, 0, 1), 4.5),
    Part.Circle(Vector(45, 0, 0), Vector(0, 0, 1), 4.5),
], False)
sketch13.addConstraint([
    Sketcher.Constraint("Equal", 0, 1),
    Sketcher.Constraint("Equal", 1, 2),
    Sketcher.Constraint("Equal", 2, 3),
    Sketcher.Constraint("Symmetric", 0, 3, 2, 3, -1, 1),
    Sketcher.Constraint("Symmetric", 1, 3, 3, 3, -1, 1),
    Sketcher.Constraint("PointOnObject", 0, 3, -2),
    Sketcher.Constraint("PointOnObject", 1, 3, -1),
    Sketcher.Constraint("Diameter", 0, Q("8.9 mm")),
    Sketcher.Constraint("DistanceY", 0, 3, -1, 1, Q("45 mm")),
    Sketcher.Constraint("DistanceX", 1, 3, -1, 1, Q("45 mm")),
])
pocket10 = body.newObject("PartDesign::Pocket", "Pocket009")
pocket10.Profile = sketch13
pocket10.Length = 6.3

# Sketch on XZ plane
sketch14 = body.newObject("Sketcher::SketchObject", "Sketch013")
sketch14.AttachmentSupport = (doc.getObject("XZ_Plane"), [""])
sketch14.MapMode = "FlatFace"
sketch14.AttachmentOffset = App.Placement(Vector(0, 0, -44), App.Rotation())
sketch14.addGeometry(Part.Circle(Vector(0, 0, 0), Vector(0, 0, 1), 50), False)  # 0
sketch14.addGeometry(Part.Circle(Vector(0, -45, 0), Vector(0, 0, 1), 2.5), False)  # 1
sketch14.addGeometry(Part.Circle(Vector(-45, 0, 0), Vector(0, 0, 1), 2.5), False)  # 2
sketch14.addGeometry(Part.Circle(Vector(45, 0, 0), Vector(0, 0, 1), 2.5), False)  # 3
add_polygon(sketch14, [(15, 36), (-15, 36), (-15, -12), (15, -12)])  # lines 4-7
sketch14.addGeometry(Part.Circle(Vector(0, 45, 0), Vector(0, 0, 1), 2.5), False)  # 8
sketch14.addConstraint([
    Sketcher.Constraint("Horizontal", 4),
    Sketcher.Constraint("Vertical", 5),
    Sketcher.Constraint("Horizontal", 6),
    Sketcher.Constraint("Vertical", 7),
    Sketcher.Constraint("Coincident", 0, 3, -1, 1),
    Sketcher.Constraint("Equal", 1, 2),
    Sketcher.Constraint("Equal", 2, 3),
    Sketcher.Constraint("Equal", 3, 8),
    Sketcher.Constraint("Symmetric", 2, 3, 3, 3, -1, 1),
    Sketcher.Constraint("Symmetric", 1, 3, 8, 3, -1, 1),
    Sketcher.Constraint("PointOnObject", 1, 3, -2),
    Sketcher.Constraint("PointOnObject", 2, 3, -1),
    Sketcher.Constraint("Diameter", 0, Q("100 mm")),
    Sketcher.Constraint("Diameter", 1, Q("5 mm")),
    Sketcher.Constraint("DistanceX", 4, 2, 4, 1, Q("30 mm")),
    Sketcher.Constraint("DistanceY", 5, 2, 5, 1, Q("48 mm")),
    Sketcher.Constraint("DistanceY", 1, 3, -1, 1, Q("45 mm")),
    Sketcher.Constraint("DistanceX", 2, 3, -1, 1, Q("45 mm")),
    Sketcher.Constraint("DistanceX", 4, 2, -1, 1, Q("15 mm")),
    Sketcher.Constraint("DistanceY", -1, 1, 4, 2, Q("36 mm")),
])
pad4 = body.newObject("PartDesign::Pad", "Pad003")
pad4.Profile = sketch14
pad4.Length = 24

# Sketch on XZ plane
sketch15 = body.newObject("Sketcher::SketchObject", "Sketch014")
sketch15.AttachmentSupport = (doc.getObject("XZ_Plane"), [""])
sketch15.MapMode = "FlatFace"
sketch15.AttachmentOffset = App.Placement(Vector(0, 0, -5.7), App.Rotation())
sketch15.addGeometry(Part.Circle(Vector(0, 0, 0), Vector(0, 0, 1), 50), False)
sketch15.addConstraint([
    Sketcher.Constraint("Coincident", 0, 3, -1, 1),
    Sketcher.Constraint("Diameter", 0, Q("100 mm")),
])
pocket11 = body.newObject("PartDesign::Pocket", "Pocket010")
pocket11.Profile = sketch15
pocket11.Length = 7
pocket11.Reversed = True

# Sketch on XZ plane
sketch16 = body.newObject("Sketcher::SketchObject", "Sketch015")
sketch16.AttachmentSupport = (doc.getObject("XZ_Plane"), [""])
sketch16.MapMode = "FlatFace"
sketch16.AttachmentOffset = App.Placement(Vector(0, 0, -5.7), App.Rotation())
sketch16.addGeometry([
    Part.Circle(Vector(11, -8, 0), Vector(0, 0, 1), 2.4),
    Part.Circle(Vector(-11, -8, 0), Vector(0, 0, 1), 2.4),
    Part.Circle(Vector(-11, 32, 0), Vector(0, 0, 1), 2.4),
    Part.Circle(Vector(11, 32, 0), Vector(0, 0, 1), 2.4),
], False)
sketch16.addConstraint([
    Sketcher.Constraint("Equal", 0, 1),
    Sketcher.Constraint("Equal", 1, 2),
    Sketcher.Constraint("Equal", 2, 3),
    Sketcher.Constraint("Symmetric", 0, 3, 1, 3, -2),
    Sketcher.Constraint("Symmetric", 2, 3, 3, 3, -2),
    Sketcher.Constraint("Vertical", 1, 3, 2, 3),
    Sketcher.Constraint("Diameter", 0, Q("4.8 mm")),
    Sketcher.Constraint("DistanceX", -1, 1, 0, 3, Q("11 mm")),
    Sketcher.Constraint("DistanceY", 0, 3, -1, 1, Q("8 mm")),
    Sketcher.Constraint("DistanceY", -1, 1, 2, 3, Q("32 mm")),
])
pocket12 = body.newObject("PartDesign::Pocket", "Pocket011")
pocket12.Profile = sketch16
pocket12.Length = 2.6

# Sketch on XZ plane
sketch17 = body.newObject("Sketcher::SketchObject", "Sketch016")
sketch17.AttachmentSupport = (doc.getObject("XZ_Plane"), [""])
sketch17.MapMode = "FlatFace"
sketch17.AttachmentOffset = App.Placement(Vector(0, 0, -5.7), App.Rotation())
add_polygon(sketch17, [(-49, 17), (-49, 11), (49, 11), (49, 17)])  # lines 0-3
sketch17.addConstraint([
    Sketcher.Constraint("Vertical", 0),
    Sketcher.Constraint("Horizontal", 1),
    Sketcher.Constraint("Vertical", 2),
    Sketcher.Constraint("Horizontal", 3),
    Sketcher.Constraint("DistanceY", 0, 2, 0, 1, Q("6 mm")),
    Sketcher.Constraint("DistanceY", -1, 1, 0, 2, Q("11.15 mm")),
    Sketcher.Constraint("DistanceX", 1, 1, 1, 2, Q("97.481844 mm")),
    Sketcher.Constraint("DistanceX", 0, 2, -1, 1, Q("48.740922 mm")),
])
pocket13 = body.newObject("PartDesign::Pocket", "Pocket012")
pocket13.Profile = sketch17
pocket13.Length = 5

# Sketch on XZ plane
sketch18 = body.newObject("Sketcher::SketchObject", "Sketch017")
sketch18.AttachmentSupport = (doc.getObject("XZ_Plane"), [""])
sketch18.MapMode = "FlatFace"
sketch18.AttachmentOffset = App.Placement(Vector(0, 0, -44), App.Rotation())
sketch18.addGeometry(Part.Circle(Vector(0, 0, 0), Vector(0, 0, 1), 50), False)
sketch18.addConstraint([
    Sketcher.Constraint("Coincident", 0, 3, -1, 1),
    Sketcher.Constraint("Diameter", 0, Q("100 mm")),
])
pocket14 = body.newObject("PartDesign::Pocket", "Pocket013")
pocket14.Profile = sketch18
pocket14.Length = 10
pocket14.Reversed = True

# Sketch on XZ plane
sketch19 = body.newObject("Sketcher::SketchObject", "Sketch018")
sketch19.AttachmentSupport = (doc.getObject("XZ_Plane"), [""])
sketch19.MapMode = "FlatFace"
sketch19.AttachmentOffset = App.Placement(Vector(0, 0, -20.7), App.Rotation())
sketch19.addGeometry([
    Part.Circle(Vector(45, 0, 0), Vector(0, 0, 1), 4.5),
    Part.Circle(Vector(0, 45, 0), Vector(0, 0, 1), 4.5),
    Part.Circle(Vector(-45, 0, 0), Vector(0, 0, 1), 4.5),
    Part.Circle(Vector(0, -45, 0), Vector(0, 0, 1), 4.5),
], False)
sketch19.addConstraint([
    Sketcher.Constraint("Equal", 0, 1),
    Sketcher.Constraint("Equal", 1, 2),
    Sketcher.Constraint("Equal", 2, 3),
    Sketcher.Constraint("Symmetric", 0, 3, 2, 3, -1, 1),
    Sketcher.Constraint("Symmetric", 1, 3, 3, 3, -1, 1),
    Sketcher.Constraint("PointOnObject", 0, 3, -1),
    Sketcher.Constraint("PointOnObject", 1, 3, -2),
    Sketcher.Constraint("Diameter", 0, Q("8.9 mm")),
    Sketcher.Constraint("DistanceX", -1, 1, 0, 3, Q("45 mm")),
    Sketcher.Constraint("DistanceY", -1, 1, 1, 3, Q("45 mm")),
])
pocket15 = body.newObject("PartDesign::Pocket", "Pocket014")
pocket15.Profile = sketch19
pocket15.Type = "TwoLengths"
pocket15.Length = 6.3
pocket15.Length2 = 73.284161
pocket15.Reversed = True

doc.recompute()
